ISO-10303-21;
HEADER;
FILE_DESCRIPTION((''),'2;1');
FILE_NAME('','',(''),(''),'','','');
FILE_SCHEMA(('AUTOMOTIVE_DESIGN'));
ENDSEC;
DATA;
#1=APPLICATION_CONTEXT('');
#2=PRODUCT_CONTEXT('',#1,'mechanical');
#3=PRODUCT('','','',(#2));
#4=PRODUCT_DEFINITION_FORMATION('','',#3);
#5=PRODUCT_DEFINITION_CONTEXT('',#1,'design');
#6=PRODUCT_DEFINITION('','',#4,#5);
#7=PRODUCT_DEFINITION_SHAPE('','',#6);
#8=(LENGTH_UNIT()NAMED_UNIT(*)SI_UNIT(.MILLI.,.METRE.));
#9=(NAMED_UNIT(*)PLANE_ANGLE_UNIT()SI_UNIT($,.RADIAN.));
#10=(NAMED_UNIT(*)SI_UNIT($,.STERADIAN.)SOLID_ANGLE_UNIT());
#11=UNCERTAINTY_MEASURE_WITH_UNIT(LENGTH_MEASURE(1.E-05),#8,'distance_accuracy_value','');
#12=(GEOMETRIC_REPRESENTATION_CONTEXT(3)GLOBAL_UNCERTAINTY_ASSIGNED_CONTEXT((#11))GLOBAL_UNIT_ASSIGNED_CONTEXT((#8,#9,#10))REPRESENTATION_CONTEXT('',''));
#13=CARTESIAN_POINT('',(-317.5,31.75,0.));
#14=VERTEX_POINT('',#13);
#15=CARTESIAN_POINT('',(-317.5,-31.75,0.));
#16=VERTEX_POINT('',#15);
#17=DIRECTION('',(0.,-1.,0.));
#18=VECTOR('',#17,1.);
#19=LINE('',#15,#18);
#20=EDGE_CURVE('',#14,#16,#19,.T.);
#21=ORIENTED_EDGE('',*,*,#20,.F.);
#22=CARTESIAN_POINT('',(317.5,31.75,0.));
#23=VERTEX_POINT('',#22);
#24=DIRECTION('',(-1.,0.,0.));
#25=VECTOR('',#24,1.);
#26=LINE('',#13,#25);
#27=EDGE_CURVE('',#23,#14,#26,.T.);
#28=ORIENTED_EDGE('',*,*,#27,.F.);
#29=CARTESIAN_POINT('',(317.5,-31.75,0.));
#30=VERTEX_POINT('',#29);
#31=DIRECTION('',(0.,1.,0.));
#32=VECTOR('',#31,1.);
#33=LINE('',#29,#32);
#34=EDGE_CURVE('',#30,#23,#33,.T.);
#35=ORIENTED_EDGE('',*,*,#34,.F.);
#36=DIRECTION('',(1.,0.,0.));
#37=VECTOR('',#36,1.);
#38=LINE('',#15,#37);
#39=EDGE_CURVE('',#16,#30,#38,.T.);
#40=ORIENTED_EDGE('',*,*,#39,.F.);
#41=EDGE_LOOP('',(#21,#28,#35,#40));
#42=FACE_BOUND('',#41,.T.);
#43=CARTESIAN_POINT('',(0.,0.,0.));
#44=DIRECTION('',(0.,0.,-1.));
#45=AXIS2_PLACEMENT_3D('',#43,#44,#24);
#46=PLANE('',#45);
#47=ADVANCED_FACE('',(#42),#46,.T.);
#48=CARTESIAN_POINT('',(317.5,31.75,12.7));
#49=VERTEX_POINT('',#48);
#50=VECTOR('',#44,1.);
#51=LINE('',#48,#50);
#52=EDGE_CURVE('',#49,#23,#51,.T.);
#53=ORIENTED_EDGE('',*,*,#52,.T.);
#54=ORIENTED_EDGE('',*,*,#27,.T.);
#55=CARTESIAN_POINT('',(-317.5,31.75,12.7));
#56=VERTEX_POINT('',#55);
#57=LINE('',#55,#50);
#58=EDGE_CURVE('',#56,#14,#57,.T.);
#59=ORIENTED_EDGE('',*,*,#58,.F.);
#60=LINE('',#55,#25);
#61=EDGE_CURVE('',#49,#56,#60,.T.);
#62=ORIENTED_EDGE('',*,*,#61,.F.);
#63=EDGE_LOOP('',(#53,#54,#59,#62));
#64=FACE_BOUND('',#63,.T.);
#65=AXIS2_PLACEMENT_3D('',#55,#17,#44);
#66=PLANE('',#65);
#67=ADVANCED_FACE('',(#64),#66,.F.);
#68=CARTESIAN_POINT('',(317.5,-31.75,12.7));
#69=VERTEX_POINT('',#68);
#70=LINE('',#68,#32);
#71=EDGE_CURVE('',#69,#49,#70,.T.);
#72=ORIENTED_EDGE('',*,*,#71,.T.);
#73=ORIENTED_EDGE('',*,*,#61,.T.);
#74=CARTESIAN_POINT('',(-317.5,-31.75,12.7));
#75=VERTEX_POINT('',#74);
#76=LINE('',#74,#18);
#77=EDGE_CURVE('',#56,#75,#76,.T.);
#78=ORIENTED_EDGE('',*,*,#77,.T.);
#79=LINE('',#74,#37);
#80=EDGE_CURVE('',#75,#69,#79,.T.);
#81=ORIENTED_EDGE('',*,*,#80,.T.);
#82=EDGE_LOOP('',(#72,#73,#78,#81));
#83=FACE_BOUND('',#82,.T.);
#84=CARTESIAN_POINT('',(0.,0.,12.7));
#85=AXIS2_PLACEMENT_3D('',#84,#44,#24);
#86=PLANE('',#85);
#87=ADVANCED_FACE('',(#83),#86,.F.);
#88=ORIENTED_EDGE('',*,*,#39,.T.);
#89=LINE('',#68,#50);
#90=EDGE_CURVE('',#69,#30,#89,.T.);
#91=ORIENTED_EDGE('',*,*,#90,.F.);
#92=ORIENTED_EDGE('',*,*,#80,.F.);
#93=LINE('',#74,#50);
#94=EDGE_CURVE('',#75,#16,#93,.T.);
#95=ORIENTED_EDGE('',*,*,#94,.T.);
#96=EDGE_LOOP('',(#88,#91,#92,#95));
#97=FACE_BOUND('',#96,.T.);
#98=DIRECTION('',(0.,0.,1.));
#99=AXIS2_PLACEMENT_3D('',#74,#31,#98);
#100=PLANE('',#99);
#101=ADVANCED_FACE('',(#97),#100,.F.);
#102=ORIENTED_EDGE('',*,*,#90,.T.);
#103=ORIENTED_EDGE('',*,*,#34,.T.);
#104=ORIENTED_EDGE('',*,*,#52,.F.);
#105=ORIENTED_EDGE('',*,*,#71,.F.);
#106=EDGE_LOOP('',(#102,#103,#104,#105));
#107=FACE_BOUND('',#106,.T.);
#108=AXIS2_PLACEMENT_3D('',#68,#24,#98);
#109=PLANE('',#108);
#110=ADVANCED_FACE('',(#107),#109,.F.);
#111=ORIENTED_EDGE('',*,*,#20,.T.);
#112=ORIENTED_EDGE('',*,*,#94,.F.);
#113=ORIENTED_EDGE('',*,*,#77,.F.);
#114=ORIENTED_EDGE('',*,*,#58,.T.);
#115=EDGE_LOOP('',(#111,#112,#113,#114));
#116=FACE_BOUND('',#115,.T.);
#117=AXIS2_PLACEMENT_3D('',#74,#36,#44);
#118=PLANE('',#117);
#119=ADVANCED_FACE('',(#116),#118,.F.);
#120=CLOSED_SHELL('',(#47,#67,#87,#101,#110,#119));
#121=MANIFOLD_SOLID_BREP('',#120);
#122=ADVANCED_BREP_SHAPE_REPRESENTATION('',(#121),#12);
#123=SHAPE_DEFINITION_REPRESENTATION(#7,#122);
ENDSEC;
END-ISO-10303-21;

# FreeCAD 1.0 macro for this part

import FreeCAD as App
import Part
import Sketcher
from FreeCAD import Vector
Q = App.Units.Quantity

doc = App.newDocument("Part")
body = doc.addObject("PartDesign::Body", "Body")

# Sketch on XY plane
sketch1 = doc.addObject("Sketcher::SketchObject", "Sketch")
body.addObject(sketch1)
sketch1.AttachmentSupport = (doc.XY_Plane, [""])
sketch1.MapMode = "FlatFace"
sketch1.addGeometry([
    Part.LineSegment(Vector(-318, 32, 0), Vector(-318, -32, 0)),
    Part.LineSegment(Vector(-318, -32, 0), Vector(318, -32, 0)),
    Part.LineSegment(Vector(318, -32, 0), Vector(318, 32, 0)),
    Part.LineSegment(Vector(318, 32, 0), Vector(-318, 32, 0)),
], False)
sketch1.addConstraint([
    Sketcher.Constraint("Coincident", 0, 2, 1, 1),
    Sketcher.Constraint("Coincident", 1, 2, 2, 1),
    Sketcher.Constraint("Coincident", 2, 2, 3, 1),
    Sketcher.Constraint("Coincident", 3, 2, 0, 1),
    Sketcher.Constraint("Vertical", 0),
    Sketcher.Constraint("Horizontal", 1),
    Sketcher.Constraint("Vertical", 2),
    Sketcher.Constraint("Horizontal", 3),
    Sketcher.Constraint("Symmetric", 0, 2, 2, 2, -1, 1),
    Sketcher.Constraint("DistanceX", 1, 1, 1, 2, Q("25 in")),
    Sketcher.Constraint("DistanceY", 0, 2, 0, 1, Q("2.5 in")),
])
pad1 = doc.addObject("PartDesign::Pad", "Pad")
body.addObject(pad1)
pad1.Profile = sketch1
pad1.Length = Q("0.5 in")

doc.recompute()
